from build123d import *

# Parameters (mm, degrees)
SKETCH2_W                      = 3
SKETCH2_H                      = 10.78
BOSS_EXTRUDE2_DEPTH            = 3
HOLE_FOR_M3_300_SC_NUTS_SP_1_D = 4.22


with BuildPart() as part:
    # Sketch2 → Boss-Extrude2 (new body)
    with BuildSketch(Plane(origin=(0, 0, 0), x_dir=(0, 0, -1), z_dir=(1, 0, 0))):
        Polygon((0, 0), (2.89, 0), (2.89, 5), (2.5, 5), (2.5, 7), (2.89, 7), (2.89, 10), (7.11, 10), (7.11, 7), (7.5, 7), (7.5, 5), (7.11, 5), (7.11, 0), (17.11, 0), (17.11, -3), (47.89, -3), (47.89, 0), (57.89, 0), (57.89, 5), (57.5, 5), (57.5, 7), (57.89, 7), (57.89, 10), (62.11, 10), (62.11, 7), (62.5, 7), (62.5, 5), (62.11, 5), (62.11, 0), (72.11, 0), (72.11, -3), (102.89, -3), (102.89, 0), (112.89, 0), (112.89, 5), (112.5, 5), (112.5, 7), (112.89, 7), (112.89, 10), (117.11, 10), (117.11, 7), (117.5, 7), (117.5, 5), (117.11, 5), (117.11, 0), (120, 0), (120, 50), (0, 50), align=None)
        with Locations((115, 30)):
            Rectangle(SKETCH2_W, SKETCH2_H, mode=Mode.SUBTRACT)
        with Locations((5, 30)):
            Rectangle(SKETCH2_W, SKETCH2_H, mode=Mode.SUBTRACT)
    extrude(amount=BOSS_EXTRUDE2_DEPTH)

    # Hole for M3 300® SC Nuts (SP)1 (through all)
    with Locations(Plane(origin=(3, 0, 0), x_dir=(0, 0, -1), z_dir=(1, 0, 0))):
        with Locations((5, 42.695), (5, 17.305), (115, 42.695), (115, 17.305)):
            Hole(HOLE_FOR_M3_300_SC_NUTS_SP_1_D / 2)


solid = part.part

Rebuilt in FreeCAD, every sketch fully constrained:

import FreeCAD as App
import Part
import Sketcher
Q = App.Units.Quantity


def add_polygon(sketch, points):
    """Adds a closed chain of lines whose ends are joined by coincident constraints."""
    first, n = sketch.GeometryCount, len(points)
    for a, b in zip(points, points[1:] + points[:1]):
        sketch.addGeometry(Part.LineSegment(App.Vector(*a, 0), App.Vector(*b, 0)), False)
    for i in range(n):
        sketch.addConstraint(Sketcher.Constraint("Coincident", first + i, 2, first + (i + 1) % n, 1))

doc = App.newDocument("Part")
params = doc.addObject("Spreadsheet::Sheet", "Params")
for row, (alias, value) in enumerate([
    ("sketch1_width", "5 mm"),
    ("sketch1_width2", "2 mm"),
    ("sketch1_width3", "3 mm"),
    ("sketch1_width4", "50 mm"),
    ("sketch1_height", "10 mm"),
    ("pad1_length", "3 mm"),
    ("sketch2_diameter", "4.22 mm"),
    ("hole_diameter", "4.22 mm"),
], start=1):
    params.set(f"A{row}", alias)
    params.set(f"B{row}", "=" + value)
    params.setAlias(f"B{row}", alias)

body = doc.addObject("PartDesign::Body", "Body")

sketch1 = body.newObject("Sketcher::SketchObject", "Sketch")
sketch1.AttachmentSupport = (doc.getObject("YZ_Plane"), [""])
sketch1.MapMode = "FlatFace"
add_polygon(sketch1, [(0, 0), (0, -2.89), (5, -2.89), (5, -2.5), (7, -2.5), (7, -2.89), (10, -2.89), (10, -7.11), (7, -7.11), (7, -7.5), (5, -7.5), (5, -7.11), (0, -7.11), (0, -17.11), (-3, -17.11), (-3, -47.89), (0, -47.89), (0, -57.89), (5, -57.89), (5, -57.5), (7, -57.5), (7, -57.89), (10, -57.89), (10, -62.11), (7, -62.11), (7, -62.5), (5, -62.5), (5, -62.11), (0, -62.11), (0, -72.11), (-3, -72.11), (-3, -102.89), (0, -102.89), (0, -112.89), (5, -112.89), (5, -112.5), (7, -112.5), (7, -112.89), (10, -112.89), (10, -117.11), (7, -117.11), (7, -117.5), (5, -117.5), (5, -117.11), (0, -117.11), (0, -120), (50, -120), (50, 0)])
add_polygon(sketch1, [(24.61, -6.5), (24.61, -3.5), (35.39, -3.5), (35.39, -6.5)])
add_polygon(sketch1, [(24.61, -116.5), (24.61, -113.5), (35.39, -113.5), (35.39, -116.5)])
sketch1.addConstraint(Sketcher.Constraint("Vertical", 0))
sketch1.addConstraint(Sketcher.Constraint("Horizontal", 1))
sketch1.addConstraint(Sketcher.Constraint("Vertical", 2))
sketch1.addConstraint(Sketcher.Constraint("Horizontal", 3))
sketch1.addConstraint(Sketcher.Constraint("Vertical", 4))
sketch1.addConstraint(Sketcher.Constraint("Horizontal", 5))
sketch1.addConstraint(Sketcher.Constraint("Vertical", 6))
sketch1.addConstraint(Sketcher.Constraint("Horizontal", 7))
sketch1.addConstraint(Sketcher.Constraint("Vertical", 8))
sketch1.addConstraint(Sketcher.Constraint("Horizontal", 9))
sketch1.addConstraint(Sketcher.Constraint("Vertical", 10))
sketch1.addConstraint(Sketcher.Constraint("Horizontal", 11))
sketch1.addConstraint(Sketcher.Constraint("Vertical", 12))
sketch1.addConstraint(Sketcher.Constraint("Horizontal", 13))
sketch1.addConstraint(Sketcher.Constraint("Vertical", 14))
sketch1.addConstraint(Sketcher.Constraint("Horizontal", 15))
sketch1.addConstraint(Sketcher.Constraint("Vertical", 16))
sketch1.addConstraint(Sketcher.Constraint("Horizontal", 17))
sketch1.addConstraint(Sketcher.Constraint("Vertical", 18))
sketch1.addConstraint(Sketcher.Constraint("Horizontal", 19))
sketch1.addConstraint(Sketcher.Constraint("Vertical", 20))
sketch1.addConstraint(Sketcher.Constraint("Horizontal", 21))
sketch1.addConstraint(Sketcher.Constraint("Vertical", 22))
sketch1.addConstraint(Sketcher.Constraint("Horizontal", 23))
sketch1.addConstraint(Sketcher.Constraint("Vertical", 24))
sketch1.addConstraint(Sketcher.Constraint("Horizontal", 25))
sketch1.addConstraint(Sketcher.Constraint("Vertical", 26))
sketch1.addConstraint(Sketcher.Constraint("Horizontal", 27))
sketch1.addConstraint(Sketcher.Constraint("Vertical", 28))
sketch1.addConstraint(Sketcher.Constraint("Horizontal", 29))
sketch1.addConstraint(Sketcher.Constraint("Vertical", 30))
sketch1.addConstraint(Sketcher.Constraint("Horizontal", 31))
sketch1.addConstraint(Sketcher.Constraint("Vertical", 32))
sketch1.addConstraint(Sketcher.Constraint("Horizontal", 33))
sketch1.addConstraint(Sketcher.Constraint("Vertical", 34))
sketch1.addConstraint(Sketcher.Constraint("Horizontal", 35))
sketch1.addConstraint(Sketcher.Constraint("Vertical", 36))
sketch1.addConstraint(Sketcher.Constraint("Horizontal", 37))
sketch1.addConstraint(Sketcher.Constraint("Vertical", 38))
sketch1.addConstraint(Sketcher.Constraint("Horizontal", 39))
sketch1.addConstraint(Sketcher.Constraint("Vertical", 40))
sketch1.addConstraint(Sketcher.Constraint("Horizontal", 41))
sketch1.addConstraint(Sketcher.Constraint("Vertical", 42))
sketch1.addConstraint(Sketcher.Constraint("Horizontal", 43))
sketch1.addConstraint(Sketcher.Constraint("Vertical", 44))
sketch1.addConstraint(Sketcher.Constraint("Horizontal", 45))
sketch1.addConstraint(Sketcher.Constraint("Vertical", 46))
sketch1.addConstraint(Sketcher.Constraint("Horizontal", 47))
sketch1.addConstraint(Sketcher.Constraint("Vertical", 48))
sketch1.addConstraint(Sketcher.Constraint("Horizontal", 49))
sketch1.addConstraint(Sketcher.Constraint("Vertical", 50))
sketch1.addConstraint(Sketcher.Constraint("Horizontal", 51))
sketch1.addConstraint(Sketcher.Constraint("Vertical", 52))
sketch1.addConstraint(Sketcher.Constraint("Horizontal", 53))
sketch1.addConstraint(Sketcher.Constraint("Vertical", 54))
sketch1.addConstraint(Sketcher.Constraint("Horizontal", 55))
sketch1.addConstraint(Sketcher.Constraint("Coincident", 47, 2, -1, 1))
sketch1.addConstraint(Sketcher.Constraint("PointOnObject", 11, 2, -2))
sketch1.addConstraint(Sketcher.Constraint("PointOnObject", 15, 2, -2))
sketch1.addConstraint(Sketcher.Constraint("PointOnObject", 27, 2, -2))
sketch1.addConstraint(Sketcher.Constraint("PointOnObject", 31, 2, -2))
sketch1.addConstraint(Sketcher.Constraint("PointOnObject", 43, 2, -2))
sketch1.addConstraint(Sketcher.Constraint("Horizontal", 1, 2, 4, 2))
sketch1.addConstraint(Sketcher.Constraint("Horizontal", 7, 2, 10, 2))
sketch1.addConstraint(Sketcher.Constraint("Horizontal", 17, 2, 20, 2))
sketch1.addConstraint(Sketcher.Constraint("Horizontal", 23, 2, 26, 2))
sketch1.addConstraint(Sketcher.Constraint("Horizontal", 33, 2, 36, 2))
sketch1.addConstraint(Sketcher.Constraint("Horizontal", 39, 2, 42, 2))
sketch1.addConstraint(Sketcher.Constraint("Vertical", 4, 2, 7, 2))
sketch1.addConstraint(Sketcher.Constraint("Vertical", 2, 2, 9, 2))
sketch1.addConstraint(Sketcher.Constraint("Vertical", 10, 2, 17, 2))
sketch1.addConstraint(Sketcher.Constraint("Vertical", 8, 2, 19, 2))
sketch1.addConstraint(Sketcher.Constraint("Vertical", 6, 2, 21, 2))
sketch1.addConstraint(Sketcher.Constraint("Vertical", 20, 2, 23, 2))
sketch1.addConstraint(Sketcher.Constraint("Vertical", 18, 2, 25, 2))
sketch1.addConstraint(Sketcher.Constraint("Vertical", 14, 2, 29, 2))
sketch1.addConstraint(Sketcher.Constraint("Vertical", 26, 2, 33, 2))
sketch1.addConstraint(Sketcher.Constraint("Vertical", 24, 2, 35, 2))
sketch1.addConstraint(Sketcher.Constraint("Vertical", 22, 2, 37, 2))
sketch1.addConstraint(Sketcher.Constraint("Vertical", 36, 2, 39, 2))
sketch1.addConstraint(Sketcher.Constraint("Vertical", 34, 2, 41, 2))
sketch1.addConstraint(Sketcher.Constraint("Vertical", 51, 2, 52, 2))
sketch1.addConstraint(Sketcher.Constraint("Vertical", 50, 2, 53, 2))
sketch1.addConstraint(Sketcher.Constraint("Equal", 7, 13))
sketch1.addConstraint(Sketcher.Constraint("Equal", 4, 8))
sketch1.addConstraint(Sketcher.Constraint("Equal", 12, 16))
sketch1.addConstraint(Sketcher.Constraint("Equal", 10, 18))
sketch1.addConstraint(Sketcher.Constraint("Equal", 6, 22))
sketch1.addConstraint(Sketcher.Constraint("Equal", 20, 24))
sketch1.addConstraint(Sketcher.Constraint("Equal", 16, 28))
sketch1.addConstraint(Sketcher.Constraint("Equal", 14, 30))
sketch1.addConstraint(Sketcher.Constraint("Equal", 28, 32))
sketch1.addConstraint(Sketcher.Constraint("Equal", 26, 34))
sketch1.addConstraint(Sketcher.Constraint("Equal", 22, 38))
sketch1.addConstraint(Sketcher.Constraint("Equal", 36, 40))
sketch1.addConstraint(Sketcher.Constraint("Equal", 0, 44))
sketch1.addConstraint(Sketcher.Constraint("Equal", 39, 48))
sketch1.addConstraint(Sketcher.Constraint("Equal", 50, 52))
sketch1.addConstraint(Sketcher.Constraint("DistanceX", 1, 1, 1, 2, Q("5 mm")))
sketch1.addConstraint(Sketcher.Constraint("DistanceX", 3, 1, 3, 2, Q("2 mm")))
sketch1.addConstraint(Sketcher.Constraint("DistanceX", 5, 1, 5, 2, Q("3 mm")))
sketch1.addConstraint(Sketcher.Constraint("DistanceX", 45, 1, 45, 2, Q("50 mm")))
sketch1.addConstraint(Sketcher.Constraint("DistanceY", 12, 2, 12, 1, Q("10 mm")))
sketch1.addConstraint(Sketcher.Constraint("DistanceY", 46, 1, 46, 2, Q("120 mm")))
sketch1.addConstraint(Sketcher.Constraint("DistanceY", 8, 2, 3, 2, Q("5 mm")))
sketch1.addConstraint(Sketcher.Constraint("DistanceY", 48, 2, 3, 2, Q("1 mm")))
sketch1.addConstraint(Sketcher.Constraint("DistanceY", 52, 2, 35, 2, Q("1 mm")))
sketch1.addConstraint(Sketcher.Constraint("DistanceX", 49, 1, 49, 2, Q("10.78 mm")))
sketch1.addConstraint(Sketcher.Constraint("DistanceY", 0, 2, 0, 1, Q("2.89 mm")))
sketch1.addConstraint(Sketcher.Constraint("DistanceY", 2, 1, 2, 2, Q("0.39 mm")))
sketch1.addConstraint(Sketcher.Constraint("DistanceX", -1, 1, 48, 2, Q("24.61 mm")))
sketch1.setExpression("Constraints[154]", "Params.sketch1_width")
sketch1.setExpression("Constraints[155]", "Params.sketch1_width2")
sketch1.setExpression("Constraints[156]", "Params.sketch1_width3")
sketch1.setExpression("Constraints[157]", "Params.sketch1_width4")
sketch1.setExpression("Constraints[158]", "Params.sketch1_height")
pad1 = body.newObject("PartDesign::Pad", "Pad")
pad1.Profile = sketch1
pad1.setExpression("Length", "Params.pad1_length")

sketch2 = body.newObject("Sketcher::SketchObject", "Sketch001")
sketch2.AttachmentSupport = (doc.getObject("YZ_Plane"), [""])
sketch2.MapMode = "FlatFace"
sketch2.AttachmentOffset = App.Placement(App.Vector(0, 0, 3), App.Rotation())
sketch2.addGeometry(Part.Circle(App.Vector(42.7, -5, 0), App.Vector(0, 0, 1), 2.1), False)
sketch2.addGeometry(Part.Circle(App.Vector(17.3, -5, 0), App.Vector(0, 0, 1), 2.1), False)
sketch2.addGeometry(Part.Circle(App.Vector(42.7, -115, 0), App.Vector(0, 0, 1), 2.1), False)
sketch2.addGeometry(Part.Circle(App.Vector(17.3, -115, 0), App.Vector(0, 0, 1), 2.1), False)
sketch2.addConstraint(Sketcher.Constraint("Equal", 0, 1))
sketch2.addConstraint(Sketcher.Constraint("Equal", 1, 2))
sketch2.addConstraint(Sketcher.Constraint("Equal", 2, 3))
sketch2.addConstraint(Sketcher.Constraint("Horizontal", 0, 3, 1, 3))
sketch2.addConstraint(Sketcher.Constraint("Horizontal", 2, 3, 3, 3))
sketch2.addConstraint(Sketcher.Constraint("Vertical", 0, 3, 2, 3))
sketch2.addConstraint(Sketcher.Constraint("Vertical", 1, 3, 3, 3))
sketch2.addConstraint(Sketcher.Constraint("Diameter", 0, Q("4.22 mm")))
sketch2.addConstraint(Sketcher.Constraint("DistanceY", 0, 3, -1, 1, Q("5 mm")))
sketch2.addConstraint(Sketcher.Constraint("DistanceY", 2, 3, -1, 1, Q("115 mm")))
sketch2.addConstraint(Sketcher.Constraint("DistanceX", 1, 3, 0, 3, Q("25.39 mm")))
sketch2.addConstraint(Sketcher.Constraint("DistanceX", -1, 1, 0, 3, Q("42.695 mm")))
sketch2.setExpression("Constraints[7]", "Params.sketch2_diameter")
doc.recompute()
hole = body.newObject("PartDesign::Hole", "Hole")
hole.Profile = sketch2
hole.ThreadType = "None"
hole.setExpression("Diameter", "Params.hole_diameter")
hole.DepthType = "ThroughAll"

doc.recompute()
